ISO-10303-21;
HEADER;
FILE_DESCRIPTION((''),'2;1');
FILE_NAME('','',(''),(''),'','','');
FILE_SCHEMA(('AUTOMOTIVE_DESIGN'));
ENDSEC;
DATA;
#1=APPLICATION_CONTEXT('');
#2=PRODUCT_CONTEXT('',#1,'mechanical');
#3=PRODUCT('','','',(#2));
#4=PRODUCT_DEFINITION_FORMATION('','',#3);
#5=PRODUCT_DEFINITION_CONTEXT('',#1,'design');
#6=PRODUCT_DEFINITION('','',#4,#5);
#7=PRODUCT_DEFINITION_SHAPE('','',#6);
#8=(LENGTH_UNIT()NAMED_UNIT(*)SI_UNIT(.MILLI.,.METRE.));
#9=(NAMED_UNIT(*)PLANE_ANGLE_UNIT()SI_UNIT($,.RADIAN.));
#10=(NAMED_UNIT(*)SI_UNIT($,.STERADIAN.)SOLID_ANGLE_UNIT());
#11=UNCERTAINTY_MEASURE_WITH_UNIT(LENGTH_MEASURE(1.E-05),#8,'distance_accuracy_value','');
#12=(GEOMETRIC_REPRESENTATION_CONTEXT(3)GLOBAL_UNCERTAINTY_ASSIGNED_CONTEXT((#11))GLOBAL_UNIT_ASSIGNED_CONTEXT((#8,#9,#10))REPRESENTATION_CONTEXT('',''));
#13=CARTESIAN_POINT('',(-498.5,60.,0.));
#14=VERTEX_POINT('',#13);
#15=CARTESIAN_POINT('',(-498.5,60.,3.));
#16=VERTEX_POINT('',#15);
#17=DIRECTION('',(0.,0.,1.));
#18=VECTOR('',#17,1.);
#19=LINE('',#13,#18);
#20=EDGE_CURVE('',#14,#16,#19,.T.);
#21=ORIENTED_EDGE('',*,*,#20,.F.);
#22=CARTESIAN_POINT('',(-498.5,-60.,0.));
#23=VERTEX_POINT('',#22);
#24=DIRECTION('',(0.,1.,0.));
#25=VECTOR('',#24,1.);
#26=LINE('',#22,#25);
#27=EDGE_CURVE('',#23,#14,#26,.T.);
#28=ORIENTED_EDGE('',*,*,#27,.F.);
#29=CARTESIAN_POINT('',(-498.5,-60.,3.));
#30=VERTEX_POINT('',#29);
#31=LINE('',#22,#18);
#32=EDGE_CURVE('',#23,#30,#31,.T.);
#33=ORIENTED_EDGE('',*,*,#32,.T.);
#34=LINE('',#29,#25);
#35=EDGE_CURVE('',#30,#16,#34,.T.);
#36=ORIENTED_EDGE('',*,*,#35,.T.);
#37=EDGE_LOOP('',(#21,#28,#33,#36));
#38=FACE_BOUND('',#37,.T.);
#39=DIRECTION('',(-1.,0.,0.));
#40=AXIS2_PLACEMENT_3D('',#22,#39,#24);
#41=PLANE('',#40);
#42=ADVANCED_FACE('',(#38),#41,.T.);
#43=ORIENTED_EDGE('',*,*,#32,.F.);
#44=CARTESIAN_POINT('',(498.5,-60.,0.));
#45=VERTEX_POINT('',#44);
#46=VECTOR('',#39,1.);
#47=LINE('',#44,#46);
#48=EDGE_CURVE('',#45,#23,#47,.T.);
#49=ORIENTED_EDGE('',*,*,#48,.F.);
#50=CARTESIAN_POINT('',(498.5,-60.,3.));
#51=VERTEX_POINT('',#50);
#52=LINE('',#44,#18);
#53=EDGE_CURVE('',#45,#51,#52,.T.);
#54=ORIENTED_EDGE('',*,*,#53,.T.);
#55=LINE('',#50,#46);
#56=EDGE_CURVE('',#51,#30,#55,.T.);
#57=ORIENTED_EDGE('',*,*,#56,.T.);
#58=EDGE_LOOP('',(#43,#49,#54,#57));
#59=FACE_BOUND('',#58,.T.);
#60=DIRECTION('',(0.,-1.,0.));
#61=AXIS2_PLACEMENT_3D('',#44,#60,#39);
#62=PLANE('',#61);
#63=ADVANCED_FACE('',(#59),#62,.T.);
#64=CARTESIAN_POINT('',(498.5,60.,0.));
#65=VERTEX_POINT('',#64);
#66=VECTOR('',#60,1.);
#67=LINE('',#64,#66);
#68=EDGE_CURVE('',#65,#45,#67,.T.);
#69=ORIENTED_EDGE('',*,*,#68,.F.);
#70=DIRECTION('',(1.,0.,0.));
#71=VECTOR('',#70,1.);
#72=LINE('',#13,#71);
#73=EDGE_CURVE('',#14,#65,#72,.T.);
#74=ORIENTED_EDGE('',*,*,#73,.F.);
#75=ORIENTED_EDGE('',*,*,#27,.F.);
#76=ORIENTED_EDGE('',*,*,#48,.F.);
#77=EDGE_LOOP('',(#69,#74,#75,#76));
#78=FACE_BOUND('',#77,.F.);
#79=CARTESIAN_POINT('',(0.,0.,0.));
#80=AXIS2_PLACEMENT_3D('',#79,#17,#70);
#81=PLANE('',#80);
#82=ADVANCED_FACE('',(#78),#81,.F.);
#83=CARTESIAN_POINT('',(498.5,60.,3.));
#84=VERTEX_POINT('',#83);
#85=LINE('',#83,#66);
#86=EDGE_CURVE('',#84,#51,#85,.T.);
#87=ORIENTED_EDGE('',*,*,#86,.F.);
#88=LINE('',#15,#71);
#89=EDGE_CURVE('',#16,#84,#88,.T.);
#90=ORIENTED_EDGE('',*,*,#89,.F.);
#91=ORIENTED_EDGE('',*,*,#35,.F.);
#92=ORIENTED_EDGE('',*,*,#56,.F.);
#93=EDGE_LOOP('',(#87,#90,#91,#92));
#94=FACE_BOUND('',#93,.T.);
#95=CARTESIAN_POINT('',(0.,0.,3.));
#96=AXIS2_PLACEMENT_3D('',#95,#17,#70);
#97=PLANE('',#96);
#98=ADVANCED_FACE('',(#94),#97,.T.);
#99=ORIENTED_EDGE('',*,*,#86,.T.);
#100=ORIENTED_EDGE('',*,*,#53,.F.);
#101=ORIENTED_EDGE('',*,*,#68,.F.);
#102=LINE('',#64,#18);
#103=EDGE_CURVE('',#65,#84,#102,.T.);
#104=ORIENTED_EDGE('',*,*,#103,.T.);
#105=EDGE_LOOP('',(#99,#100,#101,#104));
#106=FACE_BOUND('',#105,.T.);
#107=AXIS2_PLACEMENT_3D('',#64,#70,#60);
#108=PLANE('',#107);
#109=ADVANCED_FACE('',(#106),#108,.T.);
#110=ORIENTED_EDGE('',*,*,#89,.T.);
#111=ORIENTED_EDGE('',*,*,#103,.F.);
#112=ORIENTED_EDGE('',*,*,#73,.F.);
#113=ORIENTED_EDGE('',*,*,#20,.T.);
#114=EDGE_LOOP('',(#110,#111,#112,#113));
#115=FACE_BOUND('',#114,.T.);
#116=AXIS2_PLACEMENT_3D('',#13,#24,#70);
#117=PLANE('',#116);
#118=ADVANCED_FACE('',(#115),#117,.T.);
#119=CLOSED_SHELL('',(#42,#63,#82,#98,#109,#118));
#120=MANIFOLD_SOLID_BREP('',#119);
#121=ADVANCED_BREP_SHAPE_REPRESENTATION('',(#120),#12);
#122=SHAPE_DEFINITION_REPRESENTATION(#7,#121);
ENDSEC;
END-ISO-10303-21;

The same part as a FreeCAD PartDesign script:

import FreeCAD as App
import Part
import Sketcher
from FreeCAD import Vector
Q = App.Units.Quantity


def add_polygon(sketch, points):
    """Adds a closed chain of lines whose ends are joined by coincident constraints."""
    first, n = sketch.GeometryCount, len(points)
    for a, b in zip(points, points[1:] + points[:1]):
        sketch.addGeometry(Part.LineSegment(App.Vector(*a, 0), App.Vector(*b, 0)), False)
    for i in range(n):
        sketch.addConstraint(Sketcher.Constraint("Coincident", first + i, 2, first + (i + 1) % n, 1))

doc = App.newDocument("Part")
body = doc.addObject("PartDesign::Body", "Body")

# Sketch on XY plane
sketch1 = doc.addObject("Sketcher::SketchObject", "Sketch")
body.addObject(sketch1)
sketch1.AttachmentSupport = (doc.XY_Plane, [""])
sketch1.MapMode = "FlatFace"
add_polygon(sketch1, [(-498.5, -60), (498.5, -60), (498.5, 60), (-498.5, 60)])  # lines 0-3
sketch1.addConstraint(Sketcher.Constraint("Horizontal", 0))
sketch1.addConstraint(Sketcher.Constraint("Vertical", 1))
sketch1.addConstraint(Sketcher.Constraint("Horizontal", 2))
sketch1.addConstraint(Sketcher.Constraint("Vertical", 3))
sketch1.addConstraint(Sketcher.Constraint("Symmetric", 0, 2, 2, 2, -1, 1))
sketch1.addConstraint(Sketcher.Constraint("DistanceX", 0, 1, 0, 2, Q("997 mm")))
sketch1.addConstraint(Sketcher.Constraint("DistanceY", 1, 1, 1, 2, Q("120 mm")))
pad1 = doc.addObject("PartDesign::Pad", "Pad")
body.addObject(pad1)
pad1.Profile = sketch1
pad1.Length = 3

doc.recompute()
